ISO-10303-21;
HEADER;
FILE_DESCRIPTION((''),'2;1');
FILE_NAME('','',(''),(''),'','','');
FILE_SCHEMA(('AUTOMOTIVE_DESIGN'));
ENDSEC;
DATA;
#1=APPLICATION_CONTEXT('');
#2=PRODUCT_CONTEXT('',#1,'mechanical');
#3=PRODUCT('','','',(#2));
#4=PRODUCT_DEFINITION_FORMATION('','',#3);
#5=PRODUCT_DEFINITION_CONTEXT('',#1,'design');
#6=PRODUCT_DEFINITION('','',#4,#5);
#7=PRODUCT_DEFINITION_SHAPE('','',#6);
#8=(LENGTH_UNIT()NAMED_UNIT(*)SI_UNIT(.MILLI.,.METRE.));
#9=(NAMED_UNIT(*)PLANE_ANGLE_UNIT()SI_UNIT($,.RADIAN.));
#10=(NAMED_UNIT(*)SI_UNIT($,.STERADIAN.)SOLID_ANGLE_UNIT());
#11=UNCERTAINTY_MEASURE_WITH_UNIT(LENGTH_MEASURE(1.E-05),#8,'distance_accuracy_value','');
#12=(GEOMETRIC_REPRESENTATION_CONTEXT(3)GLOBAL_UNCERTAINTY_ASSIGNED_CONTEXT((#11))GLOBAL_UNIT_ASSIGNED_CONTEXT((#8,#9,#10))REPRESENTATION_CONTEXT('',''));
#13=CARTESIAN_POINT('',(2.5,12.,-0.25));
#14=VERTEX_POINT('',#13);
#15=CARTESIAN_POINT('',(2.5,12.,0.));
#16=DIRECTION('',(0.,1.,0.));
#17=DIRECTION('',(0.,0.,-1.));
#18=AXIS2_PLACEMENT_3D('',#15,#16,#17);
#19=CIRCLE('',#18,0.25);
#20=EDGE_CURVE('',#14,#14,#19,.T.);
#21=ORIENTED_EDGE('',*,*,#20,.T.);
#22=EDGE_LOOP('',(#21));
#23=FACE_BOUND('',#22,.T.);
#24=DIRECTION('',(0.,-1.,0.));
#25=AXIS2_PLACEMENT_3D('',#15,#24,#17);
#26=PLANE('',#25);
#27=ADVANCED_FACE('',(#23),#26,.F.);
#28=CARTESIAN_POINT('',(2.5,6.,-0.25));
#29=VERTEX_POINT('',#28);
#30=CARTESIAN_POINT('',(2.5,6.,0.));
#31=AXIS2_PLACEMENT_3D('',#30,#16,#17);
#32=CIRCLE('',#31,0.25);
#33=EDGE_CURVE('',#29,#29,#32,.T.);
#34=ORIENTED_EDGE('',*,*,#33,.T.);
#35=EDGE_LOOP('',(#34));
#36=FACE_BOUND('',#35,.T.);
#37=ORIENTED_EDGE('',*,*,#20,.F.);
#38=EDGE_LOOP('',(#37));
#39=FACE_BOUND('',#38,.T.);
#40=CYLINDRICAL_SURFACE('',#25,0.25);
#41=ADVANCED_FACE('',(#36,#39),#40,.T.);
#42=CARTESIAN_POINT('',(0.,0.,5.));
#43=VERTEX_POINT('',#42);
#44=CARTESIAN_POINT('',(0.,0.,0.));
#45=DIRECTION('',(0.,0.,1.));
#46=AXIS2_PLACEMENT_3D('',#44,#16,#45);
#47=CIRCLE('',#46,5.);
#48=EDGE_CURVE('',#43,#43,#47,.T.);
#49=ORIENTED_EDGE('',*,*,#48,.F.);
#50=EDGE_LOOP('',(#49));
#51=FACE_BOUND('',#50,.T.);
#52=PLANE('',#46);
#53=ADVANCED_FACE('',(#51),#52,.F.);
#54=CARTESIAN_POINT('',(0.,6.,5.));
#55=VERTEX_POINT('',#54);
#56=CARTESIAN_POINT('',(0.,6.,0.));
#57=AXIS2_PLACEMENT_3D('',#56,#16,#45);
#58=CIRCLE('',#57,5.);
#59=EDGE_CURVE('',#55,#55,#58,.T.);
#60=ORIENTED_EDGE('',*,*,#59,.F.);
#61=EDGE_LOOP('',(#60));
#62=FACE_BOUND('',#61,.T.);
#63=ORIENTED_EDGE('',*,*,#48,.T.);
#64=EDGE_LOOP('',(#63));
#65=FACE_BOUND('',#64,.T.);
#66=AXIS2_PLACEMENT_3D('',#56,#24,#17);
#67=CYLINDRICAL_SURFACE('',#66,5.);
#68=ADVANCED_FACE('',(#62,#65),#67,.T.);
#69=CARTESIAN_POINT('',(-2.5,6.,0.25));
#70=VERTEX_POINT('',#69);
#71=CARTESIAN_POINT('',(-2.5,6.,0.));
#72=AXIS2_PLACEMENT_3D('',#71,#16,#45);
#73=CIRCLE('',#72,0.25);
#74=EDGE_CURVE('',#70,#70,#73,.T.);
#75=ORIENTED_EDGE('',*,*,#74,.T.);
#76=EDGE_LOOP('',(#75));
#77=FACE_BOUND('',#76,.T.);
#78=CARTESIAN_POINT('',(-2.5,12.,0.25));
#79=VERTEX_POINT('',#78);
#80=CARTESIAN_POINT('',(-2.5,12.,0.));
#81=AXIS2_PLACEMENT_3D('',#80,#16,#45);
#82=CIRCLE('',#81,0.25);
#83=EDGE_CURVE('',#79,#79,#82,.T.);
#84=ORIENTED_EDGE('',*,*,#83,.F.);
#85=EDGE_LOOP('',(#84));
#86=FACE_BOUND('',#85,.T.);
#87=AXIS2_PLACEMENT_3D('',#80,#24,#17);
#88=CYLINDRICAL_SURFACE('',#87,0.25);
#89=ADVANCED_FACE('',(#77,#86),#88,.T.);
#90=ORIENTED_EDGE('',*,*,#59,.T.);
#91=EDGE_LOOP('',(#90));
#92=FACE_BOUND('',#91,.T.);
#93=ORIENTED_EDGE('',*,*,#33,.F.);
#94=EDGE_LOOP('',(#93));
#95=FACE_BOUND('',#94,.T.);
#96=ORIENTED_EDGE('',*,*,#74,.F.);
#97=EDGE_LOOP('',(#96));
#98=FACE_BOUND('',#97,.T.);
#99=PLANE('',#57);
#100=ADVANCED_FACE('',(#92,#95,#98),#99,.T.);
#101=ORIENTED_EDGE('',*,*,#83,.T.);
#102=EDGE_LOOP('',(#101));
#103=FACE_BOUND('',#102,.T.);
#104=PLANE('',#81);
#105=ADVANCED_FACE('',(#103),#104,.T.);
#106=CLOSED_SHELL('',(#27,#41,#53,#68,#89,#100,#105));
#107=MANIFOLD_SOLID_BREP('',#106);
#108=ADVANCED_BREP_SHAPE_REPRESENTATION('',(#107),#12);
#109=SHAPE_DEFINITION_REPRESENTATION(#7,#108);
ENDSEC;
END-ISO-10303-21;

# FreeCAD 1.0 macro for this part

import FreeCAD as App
import Part
import Sketcher

V = App.Vector

doc = App.newDocument("Part")
body = doc.addObject("PartDesign::Body", "Body")

# Sketch on XZ plane
sketch1 = doc.addObject("Sketcher::SketchObject", "Sketch")
body.addObject(sketch1)
sketch1.AttachmentSupport = (doc.XZ_Plane, [""])
sketch1.MapMode = "FlatFace"
sketch1.addGeometry(Part.Circle(V(0, 0, 0), V(0, 0, 1), 5), False)
sketch1.addConstraint([
    Sketcher.Constraint("Coincident", 0, 3, -1, 1),
    Sketcher.Constraint("Diameter", 0, 10.0),
])
pad1 = doc.addObject("PartDesign::Pad", "Pad")
body.addObject(pad1)
pad1.Profile = sketch1
pad1.Length = 6
pad1.Reversed = True

# Sketch on XZ plane
sketch2 = doc.addObject("Sketcher::SketchObject", "Sketch001")
body.addObject(sketch2)
sketch2.AttachmentSupport = (doc.XZ_Plane, [""])
sketch2.MapMode = "FlatFace"
sketch2.AttachmentOffset = App.Placement(V(0, 0, -6), App.Rotation())
sketch2.addGeometry([
    Part.Circle(V(-2.5, 0, 0), V(0, 0, 1), 0.25),
    Part.Circle(V(2.5, 0, 0), V(0, 0, 1), 0.25),
], False)
sketch2.addConstraint([
    Sketcher.Constraint("Equal", 0, 1),
    Sketcher.Constraint("Symmetric", 0, 3, 1, 3, -1, 1),
    Sketcher.Constraint("PointOnObject", 0, 3, -1),
    Sketcher.Constraint("Diameter", 0, 0.5),
    Sketcher.Constraint("DistanceX", 0, 3, 1, 3, 5.0),
])
pad2 = doc.addObject("PartDesign::Pad", "Pad001")
body.addObject(pad2)
pad2.Profile = sketch2
pad2.Length = 6
pad2.Reversed = True

doc.recompute()
